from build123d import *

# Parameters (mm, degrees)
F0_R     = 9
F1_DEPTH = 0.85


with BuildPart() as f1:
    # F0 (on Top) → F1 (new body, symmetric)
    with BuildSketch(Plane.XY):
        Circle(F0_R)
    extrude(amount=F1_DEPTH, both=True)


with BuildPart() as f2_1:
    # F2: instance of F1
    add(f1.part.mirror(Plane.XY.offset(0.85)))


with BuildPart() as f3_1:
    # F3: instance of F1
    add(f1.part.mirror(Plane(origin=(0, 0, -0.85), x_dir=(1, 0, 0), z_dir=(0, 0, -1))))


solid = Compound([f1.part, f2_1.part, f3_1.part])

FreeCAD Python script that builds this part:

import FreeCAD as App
import Part
import Sketcher
from FreeCAD import Vector

doc = App.newDocument("Part")
params = doc.addObject("Spreadsheet::Sheet", "Params")
for row, (alias, value) in enumerate([
    ("sketch1_diameter", "18 mm"),
    ("pad1_length", "1.7 mm"),
], start=1):
    params.set(f"A{row}", alias)
    params.set(f"B{row}", "=" + value)
    params.setAlias(f"B{row}", alias)

body = doc.addObject("PartDesign::Body", "Body")

sketch1 = body.newObject("Sketcher::SketchObject", "Sketch")
sketch1.AttachmentSupport = (doc.getObject("XY_Plane"), [""])
sketch1.MapMode = "FlatFace"
sketch1.addGeometry(Part.Circle(Vector(0, 0, 0), Vector(0, 0, 1), 9), False)
sketch1.addConstraint([
    Sketcher.Constraint("Coincident", 0, 3, -1, 1),
    Sketcher.Constraint("Diameter", 0, 18.0),
])
sketch1.setExpression("Constraints[1]", "Params.sketch1_diameter")
pad1 = body.newObject("PartDesign::Pad", "Pad")
pad1.Profile = sketch1
pad1.setExpression("Length", "Params.pad1_length")
pad1.Midplane = True
body2 = doc.addObject("PartDesign::Body", "Body001")
doc.recompute()

mirroring = doc.addObject("Part::Mirroring", "Mirroring")
mirroring.Source = body
mirroring.Base = Vector(0, 0, 0.85)
mirroring.Normal = Vector(0, 0, 1)
body2.BaseFeature = mirroring
doc.recompute()
body3 = doc.addObject("PartDesign::Body", "Body002")
doc.recompute()

mirroring2 = doc.addObject("Part::Mirroring", "Mirroring001")
mirroring2.Source = body
mirroring2.Base = Vector(0, 0, -0.85)
mirroring2.Normal = Vector(0, 0, -1)
body3.BaseFeature = mirroring2
doc.recompute()
mirroring.Visibility = False
mirroring2.Visibility = False

doc.recompute()
